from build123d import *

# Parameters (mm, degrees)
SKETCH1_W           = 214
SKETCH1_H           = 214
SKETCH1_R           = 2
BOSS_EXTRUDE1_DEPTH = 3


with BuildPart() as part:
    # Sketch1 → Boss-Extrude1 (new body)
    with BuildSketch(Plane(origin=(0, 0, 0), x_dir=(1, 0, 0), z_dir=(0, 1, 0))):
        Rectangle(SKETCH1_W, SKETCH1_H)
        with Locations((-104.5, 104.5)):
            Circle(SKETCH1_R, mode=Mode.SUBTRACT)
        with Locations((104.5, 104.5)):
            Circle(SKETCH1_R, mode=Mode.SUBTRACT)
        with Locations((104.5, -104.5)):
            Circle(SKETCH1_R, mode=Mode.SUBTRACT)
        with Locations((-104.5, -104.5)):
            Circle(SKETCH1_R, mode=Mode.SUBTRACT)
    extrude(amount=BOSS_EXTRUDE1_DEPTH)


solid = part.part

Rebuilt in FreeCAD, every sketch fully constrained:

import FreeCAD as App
import Part
import Sketcher
from FreeCAD import Vector

doc = App.newDocument("Part")
body = doc.addObject("PartDesign::Body", "Body")

# Sketch on XZ plane
sketch1 = body.newObject("Sketcher::SketchObject", "Sketch")
sketch1.AttachmentSupport = (doc.getObject("XZ_Plane"), [""])
sketch1.MapMode = "FlatFace"
sketch1.addGeometry(Part.LineSegment(Vector(-107, -107, 0), Vector(-107, 107, 0)), False)
sketch1.addGeometry(Part.LineSegment(Vector(-107, 107, 0), Vector(107, 107, 0)), False)
sketch1.addGeometry(Part.LineSegment(Vector(107, 107, 0), Vector(107, -107, 0)), False)
sketch1.addGeometry(Part.LineSegment(Vector(107, -107, 0), Vector(-107, -107, 0)), False)
sketch1.addGeometry(Part.Circle(Vector(-104.5, 104.5, 0), Vector(0, 0, 1), 2), False)
sketch1.addGeometry(Part.Circle(Vector(104.5, 104.5, 0), Vector(0, 0, 1), 2), False)
sketch1.addGeometry(Part.Circle(Vector(-104.5, -104.5, 0), Vector(0, 0, 1), 2), False)
sketch1.addGeometry(Part.Circle(Vector(104.5, -104.5, 0), Vector(0, 0, 1), 2), False)
sketch1.addConstraint(Sketcher.Constraint("Coincident", 0, 2, 1, 1))
sketch1.addConstraint(Sketcher.Constraint("Coincident", 1, 2, 2, 1))
sketch1.addConstraint(Sketcher.Constraint("Coincident", 2, 2, 3, 1))
sketch1.addConstraint(Sketcher.Constraint("Coincident", 3, 2, 0, 1))
sketch1.addConstraint(Sketcher.Constraint("Vertical", 0))
sketch1.addConstraint(Sketcher.Constraint("Horizontal", 1))
sketch1.addConstraint(Sketcher.Constraint("Vertical", 2))
sketch1.addConstraint(Sketcher.Constraint("Horizontal", 3))
sketch1.addConstraint(Sketcher.Constraint("Equal", 4, 5))
sketch1.addConstraint(Sketcher.Constraint("Equal", 5, 6))
sketch1.addConstraint(Sketcher.Constraint("Equal", 6, 7))
sketch1.addConstraint(Sketcher.Constraint("Symmetric", 5, 3, 6, 3, -1, 1))
sketch1.addConstraint(Sketcher.Constraint("Symmetric", 4, 3, 7, 3, -1, 1))
sketch1.addConstraint(Sketcher.Constraint("Symmetric", 0, 2, 2, 2, -1, 1))
sketch1.addConstraint(Sketcher.Constraint("Symmetric", 4, 3, 5, 3, -2))
sketch1.addConstraint(Sketcher.Constraint("Equal", 3, 0))
sketch1.addConstraint(Sketcher.Constraint("Diameter", 4, 4.0))
sketch1.addConstraint(Sketcher.Constraint("DistanceX", 1, 1, 1, 2, 214.0))
sketch1.addConstraint(Sketcher.Constraint("DistanceX", 4, 3, 5, 3, 209.0))
sketch1.addConstraint(Sketcher.Constraint("DistanceY", 6, 3, 4, 3, 209.0))
pad1 = body.newObject("PartDesign::Pad", "Pad")
pad1.Profile = sketch1
pad1.Length = 3
pad1.Reversed = True

doc.recompute()
